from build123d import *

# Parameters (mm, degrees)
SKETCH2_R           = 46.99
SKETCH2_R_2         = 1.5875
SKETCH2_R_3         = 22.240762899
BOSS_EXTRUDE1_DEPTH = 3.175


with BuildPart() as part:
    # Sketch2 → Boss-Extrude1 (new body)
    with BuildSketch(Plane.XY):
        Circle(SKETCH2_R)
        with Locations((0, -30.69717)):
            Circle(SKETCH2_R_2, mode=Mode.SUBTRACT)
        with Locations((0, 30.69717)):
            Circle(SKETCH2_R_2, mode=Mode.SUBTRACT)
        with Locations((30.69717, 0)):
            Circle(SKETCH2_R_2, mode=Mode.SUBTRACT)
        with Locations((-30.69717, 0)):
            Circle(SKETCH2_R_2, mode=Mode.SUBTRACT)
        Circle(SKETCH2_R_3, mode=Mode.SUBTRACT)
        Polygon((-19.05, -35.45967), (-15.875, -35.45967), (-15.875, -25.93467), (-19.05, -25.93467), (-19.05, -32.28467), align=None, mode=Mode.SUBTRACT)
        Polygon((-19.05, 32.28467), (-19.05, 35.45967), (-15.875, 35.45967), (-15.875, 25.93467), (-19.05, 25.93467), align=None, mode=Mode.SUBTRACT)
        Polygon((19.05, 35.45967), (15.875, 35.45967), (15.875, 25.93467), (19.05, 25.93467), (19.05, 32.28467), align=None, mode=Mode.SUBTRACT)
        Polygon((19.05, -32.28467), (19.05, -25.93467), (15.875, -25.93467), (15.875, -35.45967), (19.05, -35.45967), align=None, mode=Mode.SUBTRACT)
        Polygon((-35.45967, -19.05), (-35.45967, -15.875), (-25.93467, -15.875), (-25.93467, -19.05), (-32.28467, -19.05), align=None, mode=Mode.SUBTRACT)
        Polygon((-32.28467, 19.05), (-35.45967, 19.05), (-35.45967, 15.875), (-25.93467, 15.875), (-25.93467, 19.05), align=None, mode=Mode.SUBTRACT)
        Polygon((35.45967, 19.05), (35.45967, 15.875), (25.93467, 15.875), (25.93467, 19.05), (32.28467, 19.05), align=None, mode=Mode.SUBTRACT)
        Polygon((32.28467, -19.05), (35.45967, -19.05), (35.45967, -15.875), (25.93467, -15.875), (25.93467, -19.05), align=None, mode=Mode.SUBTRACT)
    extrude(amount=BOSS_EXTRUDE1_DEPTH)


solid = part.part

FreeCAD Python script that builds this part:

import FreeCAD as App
import Part
import Sketcher

V = App.Vector
Q = App.Units.Quantity


def add_polygon(sketch, points):
    """Adds a closed chain of lines whose ends are joined by coincident constraints."""
    first, n = sketch.GeometryCount, len(points)
    for a, b in zip(points, points[1:] + points[:1]):
        sketch.addGeometry(Part.LineSegment(App.Vector(*a, 0), App.Vector(*b, 0)), False)
    for i in range(n):
        sketch.addConstraint(Sketcher.Constraint("Coincident", first + i, 2, first + (i + 1) % n, 1))

doc = App.newDocument("Part")
body = doc.addObject("PartDesign::Body", "Body")

sketch1 = body.newObject("Sketcher::SketchObject", "Sketch")
sketch1.AttachmentSupport = (doc.getObject("XY_Plane"), [""])
sketch1.MapMode = "FlatFace"
sketch1.addGeometry(Part.Circle(V(0, 0, 0), V(0, 0, 1), 47), False)
add_polygon(sketch1, [(-15.9, -35.5), (-19.1, -35.5), (-19.1, -25.9), (-15.9, -25.9)])
add_polygon(sketch1, [(-25.9, -19.1), (-35.5, -19.1), (-35.5, -15.9), (-25.9, -15.9)])
sketch1.addGeometry(Part.Circle(V(0, -30.7, 0), V(0, 0, 1), 1.6), False)
add_polygon(sketch1, [(19.1, -25.9), (19.1, -35.5), (15.9, -35.5), (15.9, -25.9)])
add_polygon(sketch1, [(35.5, -19.1), (25.9, -19.1), (25.9, -15.9), (35.5, -15.9)])
sketch1.addGeometry(Part.Circle(V(-30.7, 0, 0), V(0, 0, 1), 1.6), False)
add_polygon(sketch1, [(-35.5, 19.1), (-25.9, 19.1), (-25.9, 15.9), (-35.5, 15.9)])
add_polygon(sketch1, [(-19.1, 25.9), (-19.1, 35.5), (-15.9, 35.5), (-15.9, 25.9)])
sketch1.addGeometry(Part.Circle(V(0, 0, 0), V(0, 0, 1), 22.2), False)
sketch1.addGeometry(Part.Circle(V(30.7, 0, 0), V(0, 0, 1), 1.6), False)
add_polygon(sketch1, [(25.9, 19.1), (35.5, 19.1), (35.5, 15.9), (25.9, 15.9)])
sketch1.addGeometry(Part.Circle(V(0, 30.7, 0), V(0, 0, 1), 1.6), False)
add_polygon(sketch1, [(15.9, 35.5), (19.1, 35.5), (19.1, 25.9), (15.9, 25.9)])
sketch1.addConstraint(Sketcher.Constraint("Horizontal", 1))
sketch1.addConstraint(Sketcher.Constraint("Vertical", 2))
sketch1.addConstraint(Sketcher.Constraint("Horizontal", 3))
sketch1.addConstraint(Sketcher.Constraint("Vertical", 4))
sketch1.addConstraint(Sketcher.Constraint("Horizontal", 5))
sketch1.addConstraint(Sketcher.Constraint("Vertical", 6))
sketch1.addConstraint(Sketcher.Constraint("Horizontal", 7))
sketch1.addConstraint(Sketcher.Constraint("Vertical", 8))
sketch1.addConstraint(Sketcher.Constraint("Vertical", 10))
sketch1.addConstraint(Sketcher.Constraint("Horizontal", 11))
sketch1.addConstraint(Sketcher.Constraint("Vertical", 12))
sketch1.addConstraint(Sketcher.Constraint("Horizontal", 13))
sketch1.addConstraint(Sketcher.Constraint("Horizontal", 14))
sketch1.addConstraint(Sketcher.Constraint("Vertical", 15))
sketch1.addConstraint(Sketcher.Constraint("Horizontal", 16))
sketch1.addConstraint(Sketcher.Constraint("Vertical", 17))
sketch1.addConstraint(Sketcher.Constraint("Horizontal", 19))
sketch1.addConstraint(Sketcher.Constraint("Vertical", 20))
sketch1.addConstraint(Sketcher.Constraint("Horizontal", 21))
sketch1.addConstraint(Sketcher.Constraint("Vertical", 22))
sketch1.addConstraint(Sketcher.Constraint("Vertical", 23))
sketch1.addConstraint(Sketcher.Constraint("Horizontal", 24))
sketch1.addConstraint(Sketcher.Constraint("Vertical", 25))
sketch1.addConstraint(Sketcher.Constraint("Horizontal", 26))
sketch1.addConstraint(Sketcher.Constraint("Horizontal", 29))
sketch1.addConstraint(Sketcher.Constraint("Vertical", 30))
sketch1.addConstraint(Sketcher.Constraint("Horizontal", 31))
sketch1.addConstraint(Sketcher.Constraint("Vertical", 32))
sketch1.addConstraint(Sketcher.Constraint("Horizontal", 34))
sketch1.addConstraint(Sketcher.Constraint("Vertical", 35))
sketch1.addConstraint(Sketcher.Constraint("Horizontal", 36))
sketch1.addConstraint(Sketcher.Constraint("Vertical", 37))
sketch1.addConstraint(Sketcher.Constraint("Coincident", 0, 3, -1, 1))
sketch1.addConstraint(Sketcher.Constraint("Coincident", 27, 3, -1, 1))
sketch1.addConstraint(Sketcher.Constraint("Equal", 9, 18))
sketch1.addConstraint(Sketcher.Constraint("Equal", 18, 28))
sketch1.addConstraint(Sketcher.Constraint("Equal", 28, 33))
sketch1.addConstraint(Sketcher.Constraint("Symmetric", 18, 3, 28, 3, -1, 1))
sketch1.addConstraint(Sketcher.Constraint("Symmetric", 9, 3, 33, 3, -1, 1))
sketch1.addConstraint(Sketcher.Constraint("Symmetric", 14, 2, 19, 2, -1, 1))
sketch1.addConstraint(Sketcher.Constraint("Symmetric", 16, 2, 21, 2, -1, 1))
sketch1.addConstraint(Sketcher.Constraint("Symmetric", 10, 2, 23, 2, -1, 1))
sketch1.addConstraint(Sketcher.Constraint("Symmetric", 12, 2, 25, 2, -1, 1))
sketch1.addConstraint(Sketcher.Constraint("Symmetric", 5, 2, 29, 2, -1, 1))
sketch1.addConstraint(Sketcher.Constraint("Symmetric", 7, 2, 31, 2, -1, 1))
sketch1.addConstraint(Sketcher.Constraint("Symmetric", 1, 2, 34, 2, -1, 1))
sketch1.addConstraint(Sketcher.Constraint("Symmetric", 3, 2, 36, 2, -1, 1))
sketch1.addConstraint(Sketcher.Constraint("Symmetric", 1, 2, 10, 2, -2))
sketch1.addConstraint(Sketcher.Constraint("Symmetric", 3, 2, 12, 2, -2))
sketch1.addConstraint(Sketcher.Constraint("Symmetric", 8, 2, 14, 2, -2))
sketch1.addConstraint(Sketcher.Constraint("Symmetric", 6, 2, 16, 2, -2))
sketch1.addConstraint(Sketcher.Constraint("PointOnObject", 9, 3, -2))
sketch1.addConstraint(Sketcher.Constraint("PointOnObject", 18, 3, -1))
sketch1.addConstraint(Sketcher.Constraint("Equal", 31, 2))
sketch1.addConstraint(Sketcher.Constraint("Equal", 36, 6))
sketch1.addConstraint(Sketcher.Constraint("Diameter", 0, Q("3.7 in")))
sketch1.addConstraint(Sketcher.Constraint("Diameter", 9, Q("0.125 in")))
sketch1.addConstraint(Sketcher.Constraint("DistanceX", 1, 2, 10, 2, Q("1.5 in")))
sketch1.addConstraint(Sketcher.Constraint("DistanceY", 17, 2, 29, 2, Q("1.5 in")))
sketch1.addConstraint(Sketcher.Constraint("DistanceX", 1, 2, 1, 1, Q("0.125 in")))
sketch1.addConstraint(Sketcher.Constraint("DistanceX", 5, 2, 5, 1, Q("0.375 in")))
sketch1.addConstraint(Sketcher.Constraint("DistanceY", 1, 2, 9, 3, Q("0.1875 in")))
sketch1.addConstraint(Sketcher.Constraint("DistanceX", 5, 2, 18, 3, Q("0.1875 in")))
sketch1.addConstraint(Sketcher.Constraint("Diameter", 27, 44.481526))
sketch1.addConstraint(Sketcher.Constraint("DistanceX", 18, 3, 28, 3, Q("2.4171 in")))
sketch1.addConstraint(Sketcher.Constraint("DistanceY", 9, 3, 33, 3, Q("2.4171 in")))
pad1 = body.newObject("PartDesign::Pad", "Pad")
pad1.Profile = sketch1
pad1.Length = Q("0.125 in")

doc.recompute()
